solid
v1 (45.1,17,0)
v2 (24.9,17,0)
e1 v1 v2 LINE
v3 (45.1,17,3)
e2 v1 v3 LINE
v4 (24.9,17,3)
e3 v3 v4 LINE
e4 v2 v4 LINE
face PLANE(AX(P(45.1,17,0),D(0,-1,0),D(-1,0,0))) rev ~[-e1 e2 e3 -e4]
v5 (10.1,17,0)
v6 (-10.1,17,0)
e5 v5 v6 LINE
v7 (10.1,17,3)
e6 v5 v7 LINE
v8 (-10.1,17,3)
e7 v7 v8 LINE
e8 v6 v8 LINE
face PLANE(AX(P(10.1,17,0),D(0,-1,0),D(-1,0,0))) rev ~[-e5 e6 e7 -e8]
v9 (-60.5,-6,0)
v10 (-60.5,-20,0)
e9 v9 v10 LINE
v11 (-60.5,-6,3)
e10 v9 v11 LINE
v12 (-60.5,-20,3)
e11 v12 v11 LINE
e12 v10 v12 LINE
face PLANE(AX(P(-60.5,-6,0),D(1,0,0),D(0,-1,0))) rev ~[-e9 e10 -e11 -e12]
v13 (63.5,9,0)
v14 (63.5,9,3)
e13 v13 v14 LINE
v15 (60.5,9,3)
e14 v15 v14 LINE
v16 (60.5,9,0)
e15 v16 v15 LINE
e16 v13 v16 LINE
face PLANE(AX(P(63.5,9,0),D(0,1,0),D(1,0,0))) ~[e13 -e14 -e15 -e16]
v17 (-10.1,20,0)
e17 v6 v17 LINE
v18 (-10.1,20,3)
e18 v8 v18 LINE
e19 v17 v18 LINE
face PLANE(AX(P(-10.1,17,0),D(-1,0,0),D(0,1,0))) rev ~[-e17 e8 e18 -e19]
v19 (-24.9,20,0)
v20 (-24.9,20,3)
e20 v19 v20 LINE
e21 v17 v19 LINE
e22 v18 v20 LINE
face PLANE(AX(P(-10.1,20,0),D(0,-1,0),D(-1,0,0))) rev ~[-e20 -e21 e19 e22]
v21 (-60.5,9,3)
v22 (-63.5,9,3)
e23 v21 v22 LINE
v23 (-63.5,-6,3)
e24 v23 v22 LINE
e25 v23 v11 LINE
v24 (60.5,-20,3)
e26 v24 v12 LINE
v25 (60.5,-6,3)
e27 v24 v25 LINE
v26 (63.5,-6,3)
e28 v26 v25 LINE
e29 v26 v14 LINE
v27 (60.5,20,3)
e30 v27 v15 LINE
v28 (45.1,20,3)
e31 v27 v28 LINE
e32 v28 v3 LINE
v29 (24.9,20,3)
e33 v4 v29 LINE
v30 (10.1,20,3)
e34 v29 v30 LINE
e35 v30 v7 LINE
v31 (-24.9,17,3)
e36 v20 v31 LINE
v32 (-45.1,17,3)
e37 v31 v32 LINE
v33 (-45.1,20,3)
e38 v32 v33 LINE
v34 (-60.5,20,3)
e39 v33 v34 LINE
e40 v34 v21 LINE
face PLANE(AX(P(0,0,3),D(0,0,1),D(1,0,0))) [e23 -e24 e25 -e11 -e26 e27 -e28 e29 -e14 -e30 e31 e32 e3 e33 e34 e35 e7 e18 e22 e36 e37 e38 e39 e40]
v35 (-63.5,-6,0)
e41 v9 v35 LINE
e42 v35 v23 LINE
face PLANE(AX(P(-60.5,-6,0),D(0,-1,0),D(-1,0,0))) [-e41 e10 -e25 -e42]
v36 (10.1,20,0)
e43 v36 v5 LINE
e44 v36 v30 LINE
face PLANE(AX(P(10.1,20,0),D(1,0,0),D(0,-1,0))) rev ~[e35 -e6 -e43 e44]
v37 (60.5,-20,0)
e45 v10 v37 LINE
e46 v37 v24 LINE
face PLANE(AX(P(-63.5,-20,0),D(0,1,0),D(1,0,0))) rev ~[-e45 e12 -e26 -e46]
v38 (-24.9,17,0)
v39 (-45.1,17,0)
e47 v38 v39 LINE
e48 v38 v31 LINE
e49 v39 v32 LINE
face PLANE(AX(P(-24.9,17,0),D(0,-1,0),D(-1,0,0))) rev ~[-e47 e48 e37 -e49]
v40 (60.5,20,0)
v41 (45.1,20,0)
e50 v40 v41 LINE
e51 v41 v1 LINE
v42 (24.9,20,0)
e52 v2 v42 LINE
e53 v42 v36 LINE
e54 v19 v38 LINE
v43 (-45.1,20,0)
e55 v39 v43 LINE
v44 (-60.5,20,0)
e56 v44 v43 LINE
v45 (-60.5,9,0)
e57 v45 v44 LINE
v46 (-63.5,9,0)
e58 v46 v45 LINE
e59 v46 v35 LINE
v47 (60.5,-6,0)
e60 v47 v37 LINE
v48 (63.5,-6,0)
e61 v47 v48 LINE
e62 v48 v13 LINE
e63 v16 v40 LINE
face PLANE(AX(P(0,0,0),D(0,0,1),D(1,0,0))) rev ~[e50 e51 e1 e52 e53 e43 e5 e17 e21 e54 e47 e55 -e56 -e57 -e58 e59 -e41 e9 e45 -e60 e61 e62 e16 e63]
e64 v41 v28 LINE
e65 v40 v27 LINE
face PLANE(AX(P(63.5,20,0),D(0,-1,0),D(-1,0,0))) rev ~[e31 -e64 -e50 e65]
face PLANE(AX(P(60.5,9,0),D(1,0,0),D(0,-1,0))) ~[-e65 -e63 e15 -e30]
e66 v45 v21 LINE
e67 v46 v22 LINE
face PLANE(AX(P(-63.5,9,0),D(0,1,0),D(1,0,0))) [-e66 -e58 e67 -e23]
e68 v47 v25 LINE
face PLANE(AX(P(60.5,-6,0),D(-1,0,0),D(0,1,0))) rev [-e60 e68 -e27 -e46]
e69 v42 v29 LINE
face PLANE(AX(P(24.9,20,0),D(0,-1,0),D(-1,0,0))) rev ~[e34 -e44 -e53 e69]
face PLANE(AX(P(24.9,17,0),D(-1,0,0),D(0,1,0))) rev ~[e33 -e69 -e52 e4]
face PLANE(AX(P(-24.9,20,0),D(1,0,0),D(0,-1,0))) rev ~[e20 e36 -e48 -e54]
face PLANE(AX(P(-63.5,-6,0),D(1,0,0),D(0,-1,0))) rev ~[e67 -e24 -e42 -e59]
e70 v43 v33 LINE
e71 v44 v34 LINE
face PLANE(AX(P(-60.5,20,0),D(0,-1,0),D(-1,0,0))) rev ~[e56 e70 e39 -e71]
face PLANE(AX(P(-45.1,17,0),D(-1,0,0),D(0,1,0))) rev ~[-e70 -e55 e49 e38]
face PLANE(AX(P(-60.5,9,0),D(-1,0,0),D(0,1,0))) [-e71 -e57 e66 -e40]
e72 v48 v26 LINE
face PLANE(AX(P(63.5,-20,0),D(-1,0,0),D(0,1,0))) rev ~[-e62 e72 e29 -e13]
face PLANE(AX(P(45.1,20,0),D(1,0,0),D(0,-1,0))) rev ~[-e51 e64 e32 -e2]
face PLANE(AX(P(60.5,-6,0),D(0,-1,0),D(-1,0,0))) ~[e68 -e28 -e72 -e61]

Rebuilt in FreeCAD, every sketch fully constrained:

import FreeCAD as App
import Part
import Sketcher

V = App.Vector
Q = App.Units.Quantity


def add_polygon(sketch, points):
    """Adds a closed chain of lines whose ends are joined by coincident constraints."""
    first, n = sketch.GeometryCount, len(points)
    for a, b in zip(points, points[1:] + points[:1]):
        sketch.addGeometry(Part.LineSegment(App.Vector(*a, 0), App.Vector(*b, 0)), False)
    for i in range(n):
        sketch.addConstraint(Sketcher.Constraint("Coincident", first + i, 2, first + (i + 1) % n, 1))

doc = App.newDocument("Part")
body = doc.addObject("PartDesign::Body", "Body")

# Sketch on XY plane
sketch1 = body.newObject("Sketcher::SketchObject", "Sketch")
sketch1.AttachmentSupport = (doc.getObject("XY_Plane"), [""])
sketch1.MapMode = "FlatFace"
add_polygon(sketch1, [(-63.5, -20), (63.5, -20), (63.5, 20), (45.1, 20), (45.1, 17), (24.9, 17), (24.9, 20), (10.1, 20), (10.1, 17), (-10.1, 17), (-10.1, 20), (-24.9, 20), (-24.9, 17), (-45.1, 17), (-45.1, 20), (-63.5, 20)])  # lines 0-15
sketch1.addConstraint([
    Sketcher.Constraint("Horizontal", 0),
    Sketcher.Constraint("Vertical", 1),
    Sketcher.Constraint("Horizontal", 2),
    Sketcher.Constraint("Vertical", 3),
    Sketcher.Constraint("Horizontal", 4),
    Sketcher.Constraint("Vertical", 5),
    Sketcher.Constraint("Horizontal", 6),
    Sketcher.Constraint("Vertical", 7),
    Sketcher.Constraint("Horizontal", 8),
    Sketcher.Constraint("Vertical", 9),
    Sketcher.Constraint("Horizontal", 10),
    Sketcher.Constraint("Vertical", 11),
    Sketcher.Constraint("Horizontal", 12),
    Sketcher.Constraint("Vertical", 13),
    Sketcher.Constraint("Horizontal", 14),
    Sketcher.Constraint("Vertical", 15),
    Sketcher.Constraint("Symmetric", 0, 2, 14, 2, -1, 1),
    Sketcher.Constraint("Symmetric", 6, 2, 9, 2, -2),
    Sketcher.Constraint("Symmetric", 4, 2, 11, 2, -2),
    Sketcher.Constraint("Symmetric", 2, 2, 13, 2, -2),
    Sketcher.Constraint("Horizontal", 2, 2, 5, 2),
    Sketcher.Constraint("Horizontal", 4, 2, 7, 2),
    Sketcher.Constraint("Equal", 4, 8),
    Sketcher.Constraint("DistanceX", 0, 1, 0, 2, Q("127 mm")),
    Sketcher.Constraint("DistanceY", 1, 1, 1, 2, Q("40 mm")),
    Sketcher.Constraint("DistanceY", 3, 2, 3, 1, Q("3 mm")),
    Sketcher.Constraint("DistanceX", 4, 2, 4, 1, Q("20.2 mm")),
    Sketcher.Constraint("DistanceX", 6, 2, 2, 2, Q("35 mm")),
])
pad1 = body.newObject("PartDesign::Pad", "Pad")
pad1.Profile = sketch1
pad1.Length = 3

# Sketch on XY plane
sketch2 = body.newObject("Sketcher::SketchObject", "Sketch001")
sketch2.AttachmentSupport = (doc.getObject("XY_Plane"), [""])
sketch2.MapMode = "FlatFace"
add_polygon(sketch2, [(-63.5, -6), (-63.5, -20), (-60.5, -20), (-60.5, -6)])  # lines 0-3
add_polygon(sketch2, [(-63.5, 20), (-63.5, 9), (-60.5, 9), (-60.5, 20)])  # lines 4-7
add_polygon(sketch2, [(45.1, 17), (45.1, 20), (24.9, 20), (24.9, 17)])  # lines 8-11
add_polygon(sketch2, [(-24.9, 20), (-45.1, 20), (-45.1, 17), (-24.9, 17)])  # lines 12-15
add_polygon(sketch2, [(10.1, 17), (10.1, 20), (-10.1, 20), (-10.1, 17)])  # lines 16-19
sketch2.addConstraint([
    Sketcher.Constraint("Vertical", 0),
    Sketcher.Constraint("Horizontal", 1),
    Sketcher.Constraint("Vertical", 2),
    Sketcher.Constraint("Horizontal", 3),
    Sketcher.Constraint("Vertical", 4),
    Sketcher.Constraint("Horizontal", 5),
    Sketcher.Constraint("Vertical", 6),
    Sketcher.Constraint("Horizontal", 7),
    Sketcher.Constraint("Vertical", 8),
    Sketcher.Constraint("Horizontal", 9),
    Sketcher.Constraint("Vertical", 10),
    Sketcher.Constraint("Horizontal", 11),
    Sketcher.Constraint("Horizontal", 12),
    Sketcher.Constraint("Vertical", 13),
    Sketcher.Constraint("Horizontal", 14),
    Sketcher.Constraint("Vertical", 15),
    Sketcher.Constraint("Vertical", 16),
    Sketcher.Constraint("Horizontal", 17),
    Sketcher.Constraint("Vertical", 18),
    Sketcher.Constraint("Horizontal", 19),
    Sketcher.Constraint("Symmetric", 8, 2, 12, 2, -2),
    Sketcher.Constraint("Symmetric", 10, 2, 14, 2, -2),
    Sketcher.Constraint("Symmetric", 1, 2, 6, 2, -1),
    Sketcher.Constraint("Horizontal", 7, 2, 8, 2),
    Sketcher.Constraint("Horizontal", 15, 2, 16, 2),
    Sketcher.Constraint("Horizontal", 14, 2, 18, 2),
    Sketcher.Constraint("Vertical", 3, 2, 4, 2),
    Sketcher.Constraint("Equal", 14, 17),
    Sketcher.Constraint("Equal", 7, 8),
    Sketcher.Constraint("DistanceX", 1, 1, 1, 2, Q("3 mm")),
    Sketcher.Constraint("DistanceX", 9, 2, 9, 1, Q("20.2 mm")),
    Sketcher.Constraint("DistanceY", 3, 2, 4, 2, Q("15 mm")),
    Sketcher.Constraint("DistanceY", 1, 2, 6, 2, Q("40 mm")),
    Sketcher.Constraint("DistanceX", 16, 2, 8, 2, Q("35 mm")),
    Sketcher.Constraint("DistanceX", 15, 2, 16, 2, Q("35 mm")),
    Sketcher.Constraint("DistanceY", 0, 2, 0, 1, Q("14 mm")),
    Sketcher.Constraint("DistanceX", 0, 2, -1, 1, Q("63.5 mm")),
])
pocket1 = body.newObject("PartDesign::Pocket", "Pocket")
pocket1.Profile = sketch2
pocket1.Type = "ThroughAll"
pocket1.Reversed = True
doc.recompute()

mirrored = body.newObject("PartDesign::Mirrored", "Mirrored")
mirrored.Originals = [pocket1]
mirrored.MirrorPlane = (doc.getObject("YZ_Plane"), [""])
body.Tip = mirrored

doc.recompute()
